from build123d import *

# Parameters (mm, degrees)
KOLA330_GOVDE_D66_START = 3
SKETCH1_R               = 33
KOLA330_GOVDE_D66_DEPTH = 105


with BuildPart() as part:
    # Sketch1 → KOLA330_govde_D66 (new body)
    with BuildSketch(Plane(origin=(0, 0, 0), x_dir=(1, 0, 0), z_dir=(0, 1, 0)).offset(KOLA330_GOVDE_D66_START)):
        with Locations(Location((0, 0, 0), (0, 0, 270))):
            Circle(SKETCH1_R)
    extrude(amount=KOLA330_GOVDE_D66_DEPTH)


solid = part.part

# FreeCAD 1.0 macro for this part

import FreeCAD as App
import Part
import Sketcher
Q = App.Units.Quantity

doc = App.newDocument("Part")
body = doc.addObject("PartDesign::Body", "Body")

# Sketch on XZ plane
sketch1 = doc.addObject("Sketcher::SketchObject", "Sketch")
body.addObject(sketch1)
sketch1.AttachmentSupport = (doc.XZ_Plane, [""])
sketch1.MapMode = "FlatFace"
sketch1.AttachmentOffset = App.Placement(App.Vector(0, 0, -3), App.Rotation())
sketch1.addGeometry(Part.Circle(App.Vector(0, 0, 0), App.Vector(0, 0, 1), 33), False)
sketch1.addConstraint(Sketcher.Constraint("Coincident", 0, 3, -1, 1))
sketch1.addConstraint(Sketcher.Constraint("Diameter", 0, Q("66 mm")))
pad1 = doc.addObject("PartDesign::Pad", "Pad")
body.addObject(pad1)
pad1.Profile = sketch1
pad1.Length = 105
pad1.Reversed = True

doc.recompute()
